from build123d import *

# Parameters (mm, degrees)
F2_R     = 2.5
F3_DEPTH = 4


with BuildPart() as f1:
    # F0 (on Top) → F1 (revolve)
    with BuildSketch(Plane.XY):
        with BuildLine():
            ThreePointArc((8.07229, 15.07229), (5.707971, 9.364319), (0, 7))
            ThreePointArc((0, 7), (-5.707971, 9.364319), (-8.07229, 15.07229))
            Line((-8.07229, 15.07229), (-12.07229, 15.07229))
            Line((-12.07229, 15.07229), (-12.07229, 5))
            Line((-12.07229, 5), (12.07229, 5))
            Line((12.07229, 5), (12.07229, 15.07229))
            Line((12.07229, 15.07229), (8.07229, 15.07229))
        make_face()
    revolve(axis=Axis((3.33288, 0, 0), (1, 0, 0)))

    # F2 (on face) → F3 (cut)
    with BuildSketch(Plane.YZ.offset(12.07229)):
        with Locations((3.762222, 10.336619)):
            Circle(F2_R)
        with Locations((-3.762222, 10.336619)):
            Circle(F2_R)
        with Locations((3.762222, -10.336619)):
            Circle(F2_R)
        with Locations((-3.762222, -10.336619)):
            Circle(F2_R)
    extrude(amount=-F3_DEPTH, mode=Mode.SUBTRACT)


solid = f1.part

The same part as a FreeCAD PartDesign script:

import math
import FreeCAD as App
import Part
import Sketcher

doc = App.newDocument("Part")
body = doc.addObject("PartDesign::Body", "Body")

sketch1 = doc.addObject("Sketcher::SketchObject", "Sketch")
body.addObject(sketch1)
sketch1.AttachmentSupport = (doc.XY_Plane, [""])
sketch1.MapMode = "FlatFace"
sketch1.addGeometry(Part.ArcOfCircle(Part.Circle(App.Vector(0, 15.1, 0), App.Vector(0, 0, 1), 8.1), math.radians(-90), math.radians(0)), False)
sketch1.addGeometry(Part.ArcOfCircle(Part.Circle(App.Vector(0, 15.1, 0), App.Vector(0, 0, 1), 8.1), math.radians(180), math.radians(270)), False)
sketch1.addGeometry(Part.LineSegment(App.Vector(-8.1, 15.1, 0), App.Vector(-12.1, 15.1, 0)), False)
sketch1.addGeometry(Part.LineSegment(App.Vector(-12.1, 15.1, 0), App.Vector(-12.1, 5, 0)), False)
sketch1.addGeometry(Part.LineSegment(App.Vector(-12.1, 5, 0), App.Vector(12.1, 5, 0)), False)
sketch1.addGeometry(Part.LineSegment(App.Vector(12.1, 5, 0), App.Vector(12.1, 15.1, 0)), False)
sketch1.addGeometry(Part.LineSegment(App.Vector(12.1, 15.1, 0), App.Vector(8.1, 15.1, 0)), False)
sketch1.addConstraint(Sketcher.Constraint("Tangent", 0, 1, 1, 2))
sketch1.addConstraint(Sketcher.Constraint("Coincident", 1, 1, 2, 1))
sketch1.addConstraint(Sketcher.Constraint("Coincident", 2, 2, 3, 1))
sketch1.addConstraint(Sketcher.Constraint("Coincident", 3, 2, 4, 1))
sketch1.addConstraint(Sketcher.Constraint("Coincident", 4, 2, 5, 1))
sketch1.addConstraint(Sketcher.Constraint("Coincident", 5, 2, 6, 1))
sketch1.addConstraint(Sketcher.Constraint("Coincident", 6, 2, 0, 2))
sketch1.addConstraint(Sketcher.Constraint("Horizontal", 2))
sketch1.addConstraint(Sketcher.Constraint("Vertical", 3))
sketch1.addConstraint(Sketcher.Constraint("Horizontal", 4))
sketch1.addConstraint(Sketcher.Constraint("Vertical", 5))
sketch1.addConstraint(Sketcher.Constraint("Horizontal", 6))
sketch1.addConstraint(Sketcher.Constraint("Equal", 0, 1))
sketch1.addConstraint(Sketcher.Constraint("Symmetric", 2, 2, 5, 2, -2))
sketch1.addConstraint(Sketcher.Constraint("PointOnObject", 0, 3, -2))
sketch1.addConstraint(Sketcher.Constraint("PointOnObject", 0, 1, -2))
sketch1.addConstraint(Sketcher.Constraint("Horizontal", 0, 3, 1, 1))
sketch1.addConstraint(Sketcher.Constraint("DistanceX", 2, 2, 2, 1, 4.0))
sketch1.addConstraint(Sketcher.Constraint("DistanceY", -1, 1, 0, 1, 7.0))
sketch1.addConstraint(Sketcher.Constraint("DistanceY", -1, 1, 3, 2, 5.0))
sketch1.addConstraint(Sketcher.Constraint("Radius", 0, 8.07229))
revolution = doc.addObject("PartDesign::Revolution", "Revolution")
body.addObject(revolution)
revolution.Profile = sketch1
revolution.ReferenceAxis = (sketch1, ["H_Axis"])
revolution.Angle = 360

sketch2 = doc.addObject("Sketcher::SketchObject", "Sketch001")
body.addObject(sketch2)
sketch2.AttachmentSupport = (doc.YZ_Plane, [""])
sketch2.MapMode = "FlatFace"
sketch2.AttachmentOffset = App.Placement(App.Vector(0, 0, 12.07229), App.Rotation())
sketch2.addGeometry(Part.Circle(App.Vector(3.8, 10.3, 0), App.Vector(0, 0, 1), 2.5), False)
sketch2.addGeometry(Part.Circle(App.Vector(-3.8, 10.3, 0), App.Vector(0, 0, 1), 2.5), False)
sketch2.addGeometry(Part.Circle(App.Vector(3.8, -10.3, 0), App.Vector(0, 0, 1), 2.5), False)
sketch2.addGeometry(Part.Circle(App.Vector(-3.8, -10.3, 0), App.Vector(0, 0, 1), 2.5), False)
sketch2.addConstraint(Sketcher.Constraint("Equal", 0, 1))
sketch2.addConstraint(Sketcher.Constraint("Equal", 1, 2))
sketch2.addConstraint(Sketcher.Constraint("Equal", 2, 3))
sketch2.addConstraint(Sketcher.Constraint("Symmetric", 1, 3, 2, 3, -1, 1))
sketch2.addConstraint(Sketcher.Constraint("Symmetric", 0, 3, 3, 3, -1, 1))
sketch2.addConstraint(Sketcher.Constraint("Symmetric", 0, 3, 1, 3, -2))
sketch2.addConstraint(Sketcher.Constraint("Diameter", 0, 5.0))
sketch2.addConstraint(Sketcher.Constraint("DistanceX", -1, 1, 0, 3, 3.762222))
sketch2.addConstraint(Sketcher.Constraint("DistanceY", -1, 1, 0, 3, 10.336619))
pocket1 = doc.addObject("PartDesign::Pocket", "Pocket")
body.addObject(pocket1)
pocket1.Profile = sketch2
pocket1.Length = 4

doc.recompute()
